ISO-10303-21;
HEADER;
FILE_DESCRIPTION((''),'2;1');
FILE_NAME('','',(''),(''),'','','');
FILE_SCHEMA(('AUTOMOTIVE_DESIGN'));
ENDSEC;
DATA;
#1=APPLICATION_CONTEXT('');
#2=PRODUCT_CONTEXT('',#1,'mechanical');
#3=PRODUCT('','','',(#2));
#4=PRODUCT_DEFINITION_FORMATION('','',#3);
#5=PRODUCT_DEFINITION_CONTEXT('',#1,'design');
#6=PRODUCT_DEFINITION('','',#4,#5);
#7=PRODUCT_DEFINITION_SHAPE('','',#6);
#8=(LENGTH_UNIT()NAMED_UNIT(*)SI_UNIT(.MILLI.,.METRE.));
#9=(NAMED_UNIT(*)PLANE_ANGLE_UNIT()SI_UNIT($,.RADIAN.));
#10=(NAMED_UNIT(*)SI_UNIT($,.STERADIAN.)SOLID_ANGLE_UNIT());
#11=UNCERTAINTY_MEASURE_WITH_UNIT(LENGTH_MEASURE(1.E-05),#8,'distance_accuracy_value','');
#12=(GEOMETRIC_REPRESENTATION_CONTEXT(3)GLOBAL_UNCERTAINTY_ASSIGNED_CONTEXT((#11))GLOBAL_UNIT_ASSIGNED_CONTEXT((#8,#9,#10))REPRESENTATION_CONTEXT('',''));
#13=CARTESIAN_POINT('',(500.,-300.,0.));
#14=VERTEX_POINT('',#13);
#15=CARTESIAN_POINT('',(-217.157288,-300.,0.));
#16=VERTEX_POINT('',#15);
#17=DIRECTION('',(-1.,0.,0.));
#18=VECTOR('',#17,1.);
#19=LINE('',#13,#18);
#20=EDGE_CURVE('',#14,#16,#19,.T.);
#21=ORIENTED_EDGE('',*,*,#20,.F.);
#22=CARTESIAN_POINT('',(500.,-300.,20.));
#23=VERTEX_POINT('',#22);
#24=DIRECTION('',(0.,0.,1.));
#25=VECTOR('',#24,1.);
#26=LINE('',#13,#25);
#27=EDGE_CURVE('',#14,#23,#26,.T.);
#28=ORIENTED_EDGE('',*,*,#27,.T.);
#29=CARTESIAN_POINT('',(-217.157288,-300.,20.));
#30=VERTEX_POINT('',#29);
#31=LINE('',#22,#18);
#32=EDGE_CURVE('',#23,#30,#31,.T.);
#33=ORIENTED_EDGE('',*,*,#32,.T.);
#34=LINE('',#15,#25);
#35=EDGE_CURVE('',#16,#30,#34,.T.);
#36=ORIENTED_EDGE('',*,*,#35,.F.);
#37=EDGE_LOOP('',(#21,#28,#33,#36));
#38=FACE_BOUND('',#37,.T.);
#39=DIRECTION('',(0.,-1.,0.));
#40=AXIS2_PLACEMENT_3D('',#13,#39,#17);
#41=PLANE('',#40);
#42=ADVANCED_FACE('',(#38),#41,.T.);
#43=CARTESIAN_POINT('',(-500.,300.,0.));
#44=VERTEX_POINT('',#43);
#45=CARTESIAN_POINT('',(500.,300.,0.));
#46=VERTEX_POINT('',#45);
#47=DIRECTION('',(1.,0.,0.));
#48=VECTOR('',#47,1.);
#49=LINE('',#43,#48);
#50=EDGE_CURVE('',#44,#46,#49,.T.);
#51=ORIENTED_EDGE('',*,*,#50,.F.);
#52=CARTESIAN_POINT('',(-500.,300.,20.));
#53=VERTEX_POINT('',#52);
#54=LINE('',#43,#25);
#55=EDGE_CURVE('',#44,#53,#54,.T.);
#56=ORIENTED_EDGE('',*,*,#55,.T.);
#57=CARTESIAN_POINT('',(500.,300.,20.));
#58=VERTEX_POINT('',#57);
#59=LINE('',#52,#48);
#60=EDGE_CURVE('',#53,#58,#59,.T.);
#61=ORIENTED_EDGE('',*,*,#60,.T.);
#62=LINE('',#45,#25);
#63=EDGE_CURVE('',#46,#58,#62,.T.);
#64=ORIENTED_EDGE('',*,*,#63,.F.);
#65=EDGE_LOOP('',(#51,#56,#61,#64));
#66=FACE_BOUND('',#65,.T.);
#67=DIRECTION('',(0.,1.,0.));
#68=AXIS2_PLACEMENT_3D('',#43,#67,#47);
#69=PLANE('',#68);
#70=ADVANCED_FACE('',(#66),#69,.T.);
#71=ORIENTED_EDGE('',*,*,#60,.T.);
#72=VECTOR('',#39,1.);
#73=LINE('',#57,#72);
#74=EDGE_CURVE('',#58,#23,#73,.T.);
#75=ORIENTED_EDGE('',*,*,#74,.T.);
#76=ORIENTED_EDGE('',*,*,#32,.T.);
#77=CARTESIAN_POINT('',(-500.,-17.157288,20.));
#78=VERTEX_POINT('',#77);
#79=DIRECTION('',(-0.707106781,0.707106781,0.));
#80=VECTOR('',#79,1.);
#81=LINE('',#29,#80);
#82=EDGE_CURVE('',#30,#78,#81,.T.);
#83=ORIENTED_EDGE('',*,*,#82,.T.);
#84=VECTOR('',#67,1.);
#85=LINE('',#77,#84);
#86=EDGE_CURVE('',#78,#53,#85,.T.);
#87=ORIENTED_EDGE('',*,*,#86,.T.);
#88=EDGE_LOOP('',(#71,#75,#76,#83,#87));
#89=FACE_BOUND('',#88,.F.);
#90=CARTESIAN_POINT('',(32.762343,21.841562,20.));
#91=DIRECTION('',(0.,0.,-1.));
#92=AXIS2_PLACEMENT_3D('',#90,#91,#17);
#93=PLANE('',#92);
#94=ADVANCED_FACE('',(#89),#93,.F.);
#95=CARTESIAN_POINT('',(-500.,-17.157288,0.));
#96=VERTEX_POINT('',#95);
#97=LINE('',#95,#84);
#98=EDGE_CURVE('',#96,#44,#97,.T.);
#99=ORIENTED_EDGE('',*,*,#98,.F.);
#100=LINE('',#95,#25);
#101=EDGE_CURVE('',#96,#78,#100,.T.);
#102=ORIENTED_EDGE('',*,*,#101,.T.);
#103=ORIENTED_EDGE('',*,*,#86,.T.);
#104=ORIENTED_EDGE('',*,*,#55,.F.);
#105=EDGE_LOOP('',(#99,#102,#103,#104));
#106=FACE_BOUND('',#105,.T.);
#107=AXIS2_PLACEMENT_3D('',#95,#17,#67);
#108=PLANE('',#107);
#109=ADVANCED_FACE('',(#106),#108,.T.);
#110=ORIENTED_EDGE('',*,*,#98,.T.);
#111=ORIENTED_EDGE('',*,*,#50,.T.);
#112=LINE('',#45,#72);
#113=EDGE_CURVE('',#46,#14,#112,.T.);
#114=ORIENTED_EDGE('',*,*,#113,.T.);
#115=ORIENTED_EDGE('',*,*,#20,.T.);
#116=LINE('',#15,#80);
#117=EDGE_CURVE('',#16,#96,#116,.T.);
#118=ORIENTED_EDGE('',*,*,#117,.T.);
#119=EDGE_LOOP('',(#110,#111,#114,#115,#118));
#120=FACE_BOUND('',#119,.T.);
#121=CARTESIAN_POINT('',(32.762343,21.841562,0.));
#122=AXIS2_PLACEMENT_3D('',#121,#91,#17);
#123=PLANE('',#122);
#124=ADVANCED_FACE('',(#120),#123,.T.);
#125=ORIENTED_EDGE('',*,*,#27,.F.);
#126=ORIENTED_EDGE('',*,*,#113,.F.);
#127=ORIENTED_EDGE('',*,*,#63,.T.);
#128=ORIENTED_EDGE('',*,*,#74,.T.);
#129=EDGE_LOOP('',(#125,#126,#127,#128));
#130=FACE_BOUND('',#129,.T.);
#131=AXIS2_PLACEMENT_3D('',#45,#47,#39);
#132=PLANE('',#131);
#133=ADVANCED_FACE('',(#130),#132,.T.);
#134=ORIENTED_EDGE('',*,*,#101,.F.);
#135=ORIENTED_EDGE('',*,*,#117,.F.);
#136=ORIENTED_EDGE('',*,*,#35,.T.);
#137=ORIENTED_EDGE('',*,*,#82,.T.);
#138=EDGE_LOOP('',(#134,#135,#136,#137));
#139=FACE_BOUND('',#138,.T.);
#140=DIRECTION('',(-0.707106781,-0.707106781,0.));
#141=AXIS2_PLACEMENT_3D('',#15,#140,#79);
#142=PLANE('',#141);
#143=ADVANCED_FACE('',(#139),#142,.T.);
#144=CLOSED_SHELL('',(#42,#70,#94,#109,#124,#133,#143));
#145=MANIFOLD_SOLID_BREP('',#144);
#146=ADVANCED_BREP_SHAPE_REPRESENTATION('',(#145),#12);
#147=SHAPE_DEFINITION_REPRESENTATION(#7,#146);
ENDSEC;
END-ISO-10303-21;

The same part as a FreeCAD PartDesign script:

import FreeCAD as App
import Part
import Sketcher

V = App.Vector
Q = App.Units.Quantity

doc = App.newDocument("Part")
params = doc.addObject("Spreadsheet::Sheet", "Params")
for row, (alias, value) in enumerate([
    ("sketch1_width", "1000 mm"),
    ("sketch1_height", "600 mm"),
    ("sketch1_length", "399.999999 mm"),
    ("pad1_length", "20 mm"),
], start=1):
    params.set(f"A{row}", alias)
    params.set(f"B{row}", "=" + value)
    params.setAlias(f"B{row}", alias)

body = doc.addObject("PartDesign::Body", "Body")

# Sketch on XY plane
sketch1 = body.newObject("Sketcher::SketchObject", "Sketch")
sketch1.AttachmentSupport = (doc.getObject("XY_Plane"), [""])
sketch1.MapMode = "FlatFace"
sketch1.addGeometry(Part.LineSegment(V(500, 300, 0), V(-500, 300, 0)), False)
sketch1.addGeometry(Part.LineSegment(V(-500, 300, 0), V(-500, -17, 0)), False)
sketch1.addGeometry(Part.LineSegment(V(-500, -17, 0), V(-217, -300, 0)), False)
sketch1.addGeometry(Part.LineSegment(V(-217, -300, 0), V(500, -300, 0)), False)
sketch1.addGeometry(Part.LineSegment(V(500, -300, 0), V(500, 300, 0)), False)
sketch1.addConstraint(Sketcher.Constraint("Coincident", 0, 2, 1, 1))
sketch1.addConstraint(Sketcher.Constraint("Coincident", 1, 2, 2, 1))
sketch1.addConstraint(Sketcher.Constraint("Coincident", 2, 2, 3, 1))
sketch1.addConstraint(Sketcher.Constraint("Coincident", 3, 2, 4, 1))
sketch1.addConstraint(Sketcher.Constraint("Coincident", 4, 2, 0, 1))
sketch1.addConstraint(Sketcher.Constraint("Horizontal", 0))
sketch1.addConstraint(Sketcher.Constraint("Vertical", 1))
sketch1.addConstraint(Sketcher.Constraint("Horizontal", 3))
sketch1.addConstraint(Sketcher.Constraint("Vertical", 4))
sketch1.addConstraint(Sketcher.Constraint("Symmetric", 0, 2, 3, 2, -1, 1))
sketch1.addConstraint(Sketcher.Constraint("DistanceX", 0, 2, 0, 1, 1000.0))
sketch1.addConstraint(Sketcher.Constraint("DistanceY", 4, 1, 4, 2, 600.0))
sketch1.addConstraint(Sketcher.Constraint("Angle", 2, Q("-45 deg")))
sketch1.addConstraint(Sketcher.Constraint("Distance", 2, 399.999999))
sketch1.setExpression("Constraints[10]", "Params.sketch1_width")
sketch1.setExpression("Constraints[11]", "Params.sketch1_height")
sketch1.setExpression("Constraints[13]", "Params.sketch1_length")
pad1 = body.newObject("PartDesign::Pad", "Pad")
pad1.Profile = sketch1
pad1.setExpression("Length", "Params.pad1_length")

doc.recompute()
